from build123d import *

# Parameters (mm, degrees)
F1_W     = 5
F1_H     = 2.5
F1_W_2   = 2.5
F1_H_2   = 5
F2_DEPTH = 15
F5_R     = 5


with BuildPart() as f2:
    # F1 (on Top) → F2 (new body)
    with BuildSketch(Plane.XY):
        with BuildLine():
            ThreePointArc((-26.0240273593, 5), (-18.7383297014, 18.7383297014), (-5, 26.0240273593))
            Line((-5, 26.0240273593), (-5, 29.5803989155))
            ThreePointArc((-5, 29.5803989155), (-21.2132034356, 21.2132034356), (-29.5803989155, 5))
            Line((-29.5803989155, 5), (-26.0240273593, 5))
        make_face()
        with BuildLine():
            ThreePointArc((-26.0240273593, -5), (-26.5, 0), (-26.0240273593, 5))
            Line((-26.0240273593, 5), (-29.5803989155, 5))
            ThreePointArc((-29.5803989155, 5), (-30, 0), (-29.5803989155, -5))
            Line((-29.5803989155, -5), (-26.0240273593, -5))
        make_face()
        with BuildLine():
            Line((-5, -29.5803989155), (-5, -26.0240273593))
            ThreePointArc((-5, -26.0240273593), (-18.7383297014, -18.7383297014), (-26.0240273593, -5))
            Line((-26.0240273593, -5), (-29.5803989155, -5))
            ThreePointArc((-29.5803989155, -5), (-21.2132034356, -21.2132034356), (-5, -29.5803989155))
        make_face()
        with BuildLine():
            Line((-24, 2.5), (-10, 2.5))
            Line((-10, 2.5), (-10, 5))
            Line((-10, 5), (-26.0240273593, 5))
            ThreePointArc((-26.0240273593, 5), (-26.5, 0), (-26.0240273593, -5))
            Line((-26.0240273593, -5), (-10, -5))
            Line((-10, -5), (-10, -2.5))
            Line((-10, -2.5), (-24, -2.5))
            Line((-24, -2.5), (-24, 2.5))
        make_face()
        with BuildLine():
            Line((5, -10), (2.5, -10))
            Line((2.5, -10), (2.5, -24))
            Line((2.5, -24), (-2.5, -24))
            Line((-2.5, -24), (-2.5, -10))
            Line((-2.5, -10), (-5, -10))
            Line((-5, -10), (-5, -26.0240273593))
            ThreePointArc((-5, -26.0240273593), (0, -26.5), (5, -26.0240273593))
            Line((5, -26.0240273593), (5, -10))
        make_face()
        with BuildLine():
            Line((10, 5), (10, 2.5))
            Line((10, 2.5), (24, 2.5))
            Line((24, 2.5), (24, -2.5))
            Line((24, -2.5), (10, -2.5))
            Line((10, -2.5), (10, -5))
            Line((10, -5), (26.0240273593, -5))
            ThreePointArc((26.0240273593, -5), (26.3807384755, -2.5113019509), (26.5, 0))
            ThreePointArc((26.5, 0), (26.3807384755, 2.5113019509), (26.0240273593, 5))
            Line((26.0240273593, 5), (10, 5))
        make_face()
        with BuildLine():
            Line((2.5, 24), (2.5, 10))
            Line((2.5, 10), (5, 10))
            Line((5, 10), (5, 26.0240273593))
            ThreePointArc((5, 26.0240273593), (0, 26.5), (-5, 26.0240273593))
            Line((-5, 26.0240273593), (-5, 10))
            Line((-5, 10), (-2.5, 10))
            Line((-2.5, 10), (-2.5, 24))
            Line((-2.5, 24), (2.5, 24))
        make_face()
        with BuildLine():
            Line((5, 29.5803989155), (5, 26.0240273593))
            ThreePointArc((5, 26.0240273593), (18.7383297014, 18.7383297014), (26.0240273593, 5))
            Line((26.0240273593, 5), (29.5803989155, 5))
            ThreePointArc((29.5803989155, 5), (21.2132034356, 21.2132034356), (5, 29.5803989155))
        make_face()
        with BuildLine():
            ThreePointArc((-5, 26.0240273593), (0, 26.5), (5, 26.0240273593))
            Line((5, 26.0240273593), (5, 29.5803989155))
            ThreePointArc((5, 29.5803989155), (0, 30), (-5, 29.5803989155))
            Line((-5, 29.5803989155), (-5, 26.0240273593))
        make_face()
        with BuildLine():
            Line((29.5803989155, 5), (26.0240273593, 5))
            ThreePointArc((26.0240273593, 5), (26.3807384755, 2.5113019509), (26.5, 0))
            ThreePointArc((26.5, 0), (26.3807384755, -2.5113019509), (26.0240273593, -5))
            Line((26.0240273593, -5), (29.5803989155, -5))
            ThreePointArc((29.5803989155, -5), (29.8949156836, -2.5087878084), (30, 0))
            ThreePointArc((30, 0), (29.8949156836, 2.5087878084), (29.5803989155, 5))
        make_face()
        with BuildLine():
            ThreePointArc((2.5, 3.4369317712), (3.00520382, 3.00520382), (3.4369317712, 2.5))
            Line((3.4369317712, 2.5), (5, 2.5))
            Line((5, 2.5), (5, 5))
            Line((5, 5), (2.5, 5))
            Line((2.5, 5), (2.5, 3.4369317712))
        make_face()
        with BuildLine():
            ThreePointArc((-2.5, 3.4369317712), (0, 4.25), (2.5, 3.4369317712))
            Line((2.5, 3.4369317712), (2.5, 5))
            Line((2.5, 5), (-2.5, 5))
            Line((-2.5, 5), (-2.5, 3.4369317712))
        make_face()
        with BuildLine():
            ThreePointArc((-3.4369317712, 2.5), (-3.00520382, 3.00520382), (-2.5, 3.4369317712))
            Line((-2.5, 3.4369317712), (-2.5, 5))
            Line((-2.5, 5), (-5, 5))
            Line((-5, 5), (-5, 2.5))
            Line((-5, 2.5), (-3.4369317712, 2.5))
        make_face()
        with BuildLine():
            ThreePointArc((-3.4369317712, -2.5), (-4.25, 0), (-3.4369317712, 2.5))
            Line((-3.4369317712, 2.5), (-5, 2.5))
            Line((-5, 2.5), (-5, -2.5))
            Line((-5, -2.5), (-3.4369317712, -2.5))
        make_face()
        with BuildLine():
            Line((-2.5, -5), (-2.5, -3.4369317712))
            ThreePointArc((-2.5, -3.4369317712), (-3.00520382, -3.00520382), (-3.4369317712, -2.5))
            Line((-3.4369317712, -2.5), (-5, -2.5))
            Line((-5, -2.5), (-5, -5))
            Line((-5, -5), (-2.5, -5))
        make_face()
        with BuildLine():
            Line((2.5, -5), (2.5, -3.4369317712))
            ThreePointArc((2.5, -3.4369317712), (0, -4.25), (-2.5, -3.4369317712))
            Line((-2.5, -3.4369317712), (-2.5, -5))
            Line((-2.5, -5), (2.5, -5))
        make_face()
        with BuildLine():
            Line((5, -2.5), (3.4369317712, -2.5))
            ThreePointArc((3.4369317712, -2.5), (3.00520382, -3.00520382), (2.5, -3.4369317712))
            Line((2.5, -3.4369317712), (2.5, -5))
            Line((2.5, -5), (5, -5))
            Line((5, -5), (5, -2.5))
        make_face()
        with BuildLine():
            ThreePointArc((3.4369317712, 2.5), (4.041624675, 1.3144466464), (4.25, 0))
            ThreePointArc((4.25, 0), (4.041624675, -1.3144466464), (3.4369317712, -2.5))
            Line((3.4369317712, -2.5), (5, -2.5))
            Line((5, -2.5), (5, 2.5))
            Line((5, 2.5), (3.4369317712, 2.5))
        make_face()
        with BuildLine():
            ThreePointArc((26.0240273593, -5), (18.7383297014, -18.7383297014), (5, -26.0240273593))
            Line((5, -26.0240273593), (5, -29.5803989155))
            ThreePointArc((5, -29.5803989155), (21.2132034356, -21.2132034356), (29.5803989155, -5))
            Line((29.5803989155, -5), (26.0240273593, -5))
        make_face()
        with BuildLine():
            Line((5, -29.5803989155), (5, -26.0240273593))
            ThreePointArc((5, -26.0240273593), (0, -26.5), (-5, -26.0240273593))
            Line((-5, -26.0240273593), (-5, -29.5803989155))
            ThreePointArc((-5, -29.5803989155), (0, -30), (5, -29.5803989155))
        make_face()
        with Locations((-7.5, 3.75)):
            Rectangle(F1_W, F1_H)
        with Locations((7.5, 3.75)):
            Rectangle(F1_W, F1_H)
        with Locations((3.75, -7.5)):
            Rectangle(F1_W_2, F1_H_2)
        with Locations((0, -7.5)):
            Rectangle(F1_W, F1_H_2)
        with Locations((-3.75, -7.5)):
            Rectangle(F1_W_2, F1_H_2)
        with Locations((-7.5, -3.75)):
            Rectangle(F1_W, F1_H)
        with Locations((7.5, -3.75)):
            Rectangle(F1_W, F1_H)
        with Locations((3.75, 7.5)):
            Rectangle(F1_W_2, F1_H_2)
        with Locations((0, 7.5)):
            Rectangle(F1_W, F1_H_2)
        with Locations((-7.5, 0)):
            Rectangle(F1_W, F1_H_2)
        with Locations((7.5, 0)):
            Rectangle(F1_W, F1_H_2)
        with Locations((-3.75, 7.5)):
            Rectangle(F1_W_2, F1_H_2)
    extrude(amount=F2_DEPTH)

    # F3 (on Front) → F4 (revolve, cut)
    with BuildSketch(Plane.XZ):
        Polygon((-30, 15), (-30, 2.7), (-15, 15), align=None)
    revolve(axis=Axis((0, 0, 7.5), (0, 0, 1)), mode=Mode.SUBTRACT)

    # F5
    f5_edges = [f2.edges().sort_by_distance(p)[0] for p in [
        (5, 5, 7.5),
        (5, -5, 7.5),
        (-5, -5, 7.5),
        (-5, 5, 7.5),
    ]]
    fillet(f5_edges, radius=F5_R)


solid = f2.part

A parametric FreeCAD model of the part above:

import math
import FreeCAD as App
import Part
import Sketcher

V = App.Vector
Q = App.Units.Quantity


def edges_at(feature, points):
    """Names of the edges that pass closest to the given points."""
    edges = feature.Shape.Edges
    near = lambda p: min(range(len(edges)), key=lambda i: edges[i].distToShape(Part.Vertex(*p))[0])
    return sorted({f"Edge{near(p) + 1}" for p in points})


def add_polygon(sketch, points):
    """Adds a closed chain of lines whose ends are joined by coincident constraints."""
    first, n = sketch.GeometryCount, len(points)
    for a, b in zip(points, points[1:] + points[:1]):
        sketch.addGeometry(Part.LineSegment(App.Vector(*a, 0), App.Vector(*b, 0)), False)
    for i in range(n):
        sketch.addConstraint(Sketcher.Constraint("Coincident", first + i, 2, first + (i + 1) % n, 1))

doc = App.newDocument("Part")
body = doc.addObject("PartDesign::Body", "Body")

# Sketch on XY plane
sketch1 = body.newObject("Sketcher::SketchObject", "Sketch")
sketch1.AttachmentSupport = (doc.getObject("XY_Plane"), [""])
sketch1.MapMode = "FlatFace"
sketch1.addGeometry(Part.ArcOfCircle(Part.Circle(V(0, 0, 0), V(0, 0, 1), 30), math.radians(-9.594068), math.radians(0)), False)  # 0
sketch1.addGeometry(Part.ArcOfCircle(Part.Circle(V(0, 0, 0), V(0, 0, 1), 30), math.radians(0), math.radians(9.594068)), False)  # 1
sketch1.addGeometry(Part.ArcOfCircle(Part.Circle(V(0, 0, 0), V(0, 0, 1), 30), math.radians(9.594068), math.radians(260.405932)), False)  # 2
sketch1.addGeometry(Part.ArcOfCircle(Part.Circle(V(0, 0, 0), V(0, 0, 1), 30), math.radians(-99.594068), math.radians(-9.594068)), False)  # 3
sketch1.addGeometry(Part.LineSegment(V(-5, -5, 0), V(-5, -26.024027, 0)), False)  # 4
sketch1.addGeometry(Part.ArcOfCircle(Part.Circle(V(0, 0, 0), V(0, 0, 1), 26.5), math.radians(-169.124284), math.radians(-100.875716)), False)  # 5
sketch1.addGeometry(Part.LineSegment(V(-26.024027, -5, 0), V(-5, -5, 0)), False)  # 6
add_polygon(sketch1, [(-2.5, -24), (-2.5, -10), (2.5, -10), (2.5, -24)])  # lines 7-10
sketch1.addGeometry(Part.ArcOfCircle(Part.Circle(V(0, 0, 0), V(0, 0, 1), 26.5), math.radians(-79.124284), math.radians(-10.875716)), False)  # 11
sketch1.addGeometry(Part.LineSegment(V(5, -26.024027, 0), V(5, -5, 0)), False)  # 12
sketch1.addGeometry(Part.LineSegment(V(5, -5, 0), V(26.024027, -5, 0)), False)  # 13
add_polygon(sketch1, [(-24, 2.5), (-10, 2.5), (-10, -2.5), (-24, -2.5)])  # lines 14-17
sketch1.addGeometry(Part.LineSegment(V(-5, 26.024027, 0), V(-5, 5, 0)), False)  # 18
sketch1.addGeometry(Part.LineSegment(V(-5, 5, 0), V(-26.024027, 5, 0)), False)  # 19
sketch1.addGeometry(Part.ArcOfCircle(Part.Circle(V(0, 0, 0), V(0, 0, 1), 26.5), math.radians(100.875716), math.radians(169.124284)), False)  # 20
sketch1.addGeometry(Part.ArcOfCircle(Part.Circle(V(0, 0, 0), V(0, 0, 1), 4.25), math.radians(-126.031879), math.radians(-53.968121)), False)  # 21
sketch1.addGeometry(Part.ArcOfCircle(Part.Circle(V(0, 0, 0), V(0, 0, 1), 4.25), math.radians(-143.968121), math.radians(-126.031879)), False)  # 22
sketch1.addGeometry(Part.ArcOfCircle(Part.Circle(V(0, 0, 0), V(0, 0, 1), 4.25), math.radians(143.968121), math.radians(216.031879)), False)  # 23
sketch1.addGeometry(Part.ArcOfCircle(Part.Circle(V(0, 0, 0), V(0, 0, 1), 4.25), math.radians(126.031879), math.radians(143.968121)), False)  # 24
sketch1.addGeometry(Part.ArcOfCircle(Part.Circle(V(0, 0, 0), V(0, 0, 1), 4.25), math.radians(53.968121), math.radians(126.031879)), False)  # 25
sketch1.addGeometry(Part.ArcOfCircle(Part.Circle(V(0, 0, 0), V(0, 0, 1), 4.25), math.radians(36.031879), math.radians(53.968121)), False)  # 26
sketch1.addGeometry(Part.ArcOfCircle(Part.Circle(V(0, 0, 0), V(0, 0, 1), 4.25), math.radians(0), math.radians(36.031879)), False)  # 27
sketch1.addGeometry(Part.ArcOfCircle(Part.Circle(V(0, 0, 0), V(0, 0, 1), 4.25), math.radians(-36.031879), math.radians(0)), False)  # 28
sketch1.addGeometry(Part.ArcOfCircle(Part.Circle(V(0, 0, 0), V(0, 0, 1), 4.25), math.radians(-53.968121), math.radians(-36.031879)), False)  # 29
add_polygon(sketch1, [(10, 2.5), (24, 2.5), (24, -2.5), (10, -2.5)])  # lines 30-33
add_polygon(sketch1, [(2.5, 10), (-2.5, 10), (-2.5, 24), (2.5, 24)])  # lines 34-37
sketch1.addGeometry(Part.ArcOfCircle(Part.Circle(V(0, 0, 0), V(0, 0, 1), 26.5), math.radians(10.875716), math.radians(79.124284)), False)  # 38
sketch1.addGeometry(Part.LineSegment(V(26.024027, 5, 0), V(5, 5, 0)), False)  # 39
sketch1.addGeometry(Part.LineSegment(V(5, 5, 0), V(5, 26.024027, 0)), False)  # 40
sketch1.addConstraint([
    Sketcher.Constraint("Tangent", 0, 2, 1, 1),
    Sketcher.Constraint("Tangent", 1, 2, 2, 1),
    Sketcher.Constraint("Tangent", 2, 2, 3, 1),
    Sketcher.Constraint("Tangent", 3, 2, 0, 1),
    Sketcher.Constraint("Coincident", 4, 2, 5, 2),
    Sketcher.Constraint("Coincident", 5, 1, 6, 1),
    Sketcher.Constraint("Coincident", 6, 2, 4, 1),
    Sketcher.Constraint("Coincident", 11, 1, 12, 1),
    Sketcher.Constraint("Coincident", 12, 2, 13, 1),
    Sketcher.Constraint("Coincident", 13, 2, 11, 2),
    Sketcher.Constraint("Coincident", 18, 2, 19, 1),
    Sketcher.Constraint("Coincident", 19, 2, 20, 2),
    Sketcher.Constraint("Coincident", 20, 1, 18, 1),
    Sketcher.Constraint("Tangent", 21, 1, 22, 2),
    Sketcher.Constraint("Tangent", 22, 1, 23, 2),
    Sketcher.Constraint("Tangent", 23, 1, 24, 2),
    Sketcher.Constraint("Tangent", 24, 1, 25, 2),
    Sketcher.Constraint("Tangent", 25, 1, 26, 2),
    Sketcher.Constraint("Tangent", 26, 1, 27, 2),
    Sketcher.Constraint("Tangent", 27, 1, 28, 2),
    Sketcher.Constraint("Tangent", 28, 1, 29, 2),
    Sketcher.Constraint("Tangent", 29, 1, 21, 2),
    Sketcher.Constraint("Coincident", 38, 1, 39, 1),
    Sketcher.Constraint("Coincident", 39, 2, 40, 1),
    Sketcher.Constraint("Coincident", 40, 2, 38, 2),
    Sketcher.Constraint("Vertical", 4),
    Sketcher.Constraint("Horizontal", 6),
    Sketcher.Constraint("Vertical", 7),
    Sketcher.Constraint("Horizontal", 8),
    Sketcher.Constraint("Vertical", 9),
    Sketcher.Constraint("Horizontal", 10),
    Sketcher.Constraint("Vertical", 12),
    Sketcher.Constraint("Horizontal", 13),
    Sketcher.Constraint("Horizontal", 14),
    Sketcher.Constraint("Vertical", 15),
    Sketcher.Constraint("Horizontal", 16),
    Sketcher.Constraint("Vertical", 17),
    Sketcher.Constraint("Vertical", 18),
    Sketcher.Constraint("Horizontal", 19),
    Sketcher.Constraint("Horizontal", 30),
    Sketcher.Constraint("Vertical", 31),
    Sketcher.Constraint("Horizontal", 32),
    Sketcher.Constraint("Vertical", 33),
    Sketcher.Constraint("Horizontal", 34),
    Sketcher.Constraint("Vertical", 35),
    Sketcher.Constraint("Horizontal", 36),
    Sketcher.Constraint("Vertical", 37),
    Sketcher.Constraint("Horizontal", 39),
    Sketcher.Constraint("Vertical", 40),
    Sketcher.Constraint("Coincident", 0, 3, -1, 1),
    Sketcher.Constraint("Coincident", 5, 3, -1, 1),
    Sketcher.Constraint("Coincident", 11, 3, -1, 1),
    Sketcher.Constraint("Coincident", 20, 3, -1, 1),
    Sketcher.Constraint("Coincident", 21, 3, -1, 1),
    Sketcher.Constraint("Coincident", 23, 3, -1, 1),
    Sketcher.Constraint("Coincident", 25, 3, -1, 1),
    Sketcher.Constraint("Coincident", 27, 3, -1, 1),
    Sketcher.Constraint("Coincident", 38, 3, -1, 1),
    Sketcher.Constraint("Equal", 0, 1),
    Sketcher.Constraint("Equal", 5, 11),
    Sketcher.Constraint("Equal", 11, 20),
    Sketcher.Constraint("Equal", 20, 38),
    Sketcher.Constraint("Symmetric", 12, 2, 18, 2, -1, 1),
    Sketcher.Constraint("Symmetric", 16, 2, 30, 2, -1, 1),
    Sketcher.Constraint("Symmetric", 14, 2, 32, 2, -1, 1),
    Sketcher.Constraint("Symmetric", 8, 2, 34, 2, -1, 1),
    Sketcher.Constraint("Symmetric", 10, 2, 36, 2, -1, 1),
    Sketcher.Constraint("Symmetric", 6, 2, 39, 2, -1, 1),
    Sketcher.Constraint("Symmetric", 6, 2, 12, 2, -2),
    Sketcher.Constraint("PointOnObject", 0, 2, -1),
    Sketcher.Constraint("PointOnObject", 27, 1, -1),
    Sketcher.Constraint("Horizontal", 3, 2, 5, 1),
    Sketcher.Constraint("Horizontal", 1, 2, 18, 2),
    Sketcher.Constraint("Horizontal", 16, 2, 22, 1),
    Sketcher.Constraint("Horizontal", 17, 2, 23, 1),
    Sketcher.Constraint("Horizontal", 24, 1, 25, 1),
    Sketcher.Constraint("Horizontal", 23, 1, 26, 1),
    Sketcher.Constraint("Horizontal", 22, 1, 28, 1),
    Sketcher.Constraint("Horizontal", 21, 1, 29, 1),
    Sketcher.Constraint("Horizontal", 26, 1, 30, 2),
    Sketcher.Constraint("Vertical", 2, 2, 4, 2),
    Sketcher.Constraint("Vertical", 10, 2, 21, 1),
    Sketcher.Constraint("Vertical", 21, 1, 24, 1),
    Sketcher.Constraint("Vertical", 9, 2, 25, 1),
    Sketcher.Constraint("Equal", 39, 4),
    Sketcher.Constraint("Equal", 32, 7),
    Sketcher.Constraint("Equal", 36, 15),
    Sketcher.Constraint("Radius", 0, Q("30 mm")),
    Sketcher.Constraint("Radius", 5, Q("26.5 mm")),
    Sketcher.Constraint("DistanceX", 8, 1, 8, 2, Q("5 mm")),
    Sketcher.Constraint("DistanceX", 14, 1, 14, 2, Q("14 mm")),
    Sketcher.Constraint("Radius", 21, Q("4.25 mm")),
    Sketcher.Constraint("DistanceY", -1, 1, 1, 2, Q("5 mm")),
    Sketcher.Constraint("DistanceY", 7, 2, -1, 1, Q("10 mm")),
    Sketcher.Constraint("DistanceX", 14, 2, -1, 1, Q("10 mm")),
])
pad1 = body.newObject("PartDesign::Pad", "Pad")
pad1.Profile = sketch1
pad1.Length = 15

# Sketch on XZ plane
sketch2 = body.newObject("Sketcher::SketchObject", "Sketch001")
sketch2.AttachmentSupport = (doc.getObject("XZ_Plane"), [""])
sketch2.MapMode = "FlatFace"
add_polygon(sketch2, [(-30, 15), (-30, 2.7), (-15, 15)])  # lines 0-2
sketch2.addConstraint([
    Sketcher.Constraint("Vertical", 0),
    Sketcher.Constraint("Horizontal", 2),
    Sketcher.Constraint("DistanceX", 2, 2, 2, 1, Q("15 mm")),
    Sketcher.Constraint("DistanceY", 0, 2, 0, 1, Q("12.3 mm")),
    Sketcher.Constraint("DistanceX", 0, 2, -1, 1, Q("30 mm")),
    Sketcher.Constraint("DistanceY", -1, 1, 1, 2, Q("15 mm")),
])
groove = body.newObject("PartDesign::Groove", "Groove")
groove.Profile = sketch2
groove.ReferenceAxis = (sketch2, ["V_Axis"])
groove.Angle = 360
doc.recompute()

fillet = body.newObject("PartDesign::Fillet", "Fillet")
fillet.Base = (groove, edges_at(groove, [
    (5, 5, 7.5),
    (5, -5, 7.5),
    (-5, -5, 7.5),
    (-5, 5, 7.5),
]))
fillet.Radius = 5

doc.recompute()
